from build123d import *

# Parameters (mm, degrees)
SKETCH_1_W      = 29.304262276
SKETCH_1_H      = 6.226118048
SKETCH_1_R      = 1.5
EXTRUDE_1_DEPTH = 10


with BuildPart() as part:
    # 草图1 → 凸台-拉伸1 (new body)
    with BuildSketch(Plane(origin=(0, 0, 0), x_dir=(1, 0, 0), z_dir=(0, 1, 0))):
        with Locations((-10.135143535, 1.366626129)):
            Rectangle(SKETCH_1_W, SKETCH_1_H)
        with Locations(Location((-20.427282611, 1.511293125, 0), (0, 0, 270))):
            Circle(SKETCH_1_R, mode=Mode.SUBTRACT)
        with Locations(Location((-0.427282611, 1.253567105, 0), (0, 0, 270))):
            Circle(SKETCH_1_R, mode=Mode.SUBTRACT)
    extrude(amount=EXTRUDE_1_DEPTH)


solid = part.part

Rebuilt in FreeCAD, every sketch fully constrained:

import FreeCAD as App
import Part
import Sketcher

V = App.Vector
Q = App.Units.Quantity


def add_polygon(sketch, points):
    """Adds a closed chain of lines whose ends are joined by coincident constraints."""
    first, n = sketch.GeometryCount, len(points)
    for a, b in zip(points, points[1:] + points[:1]):
        sketch.addGeometry(Part.LineSegment(App.Vector(*a, 0), App.Vector(*b, 0)), False)
    for i in range(n):
        sketch.addConstraint(Sketcher.Constraint("Coincident", first + i, 2, first + (i + 1) % n, 1))

doc = App.newDocument("Part")
body = doc.addObject("PartDesign::Body", "Body")

sketch1 = doc.addObject("Sketcher::SketchObject", "Sketch")
body.addObject(sketch1)
sketch1.AttachmentSupport = (doc.XZ_Plane, [""])
sketch1.MapMode = "FlatFace"
add_polygon(sketch1, [(-24.787275, -4.479685), (-24.787275, 1.746433), (4.516988, 1.746433), (4.516988, -4.479685)])
sketch1.addGeometry(Part.Circle(V(-0.427283, -1.253567, 0), V(0, 0, 1), 1.5), False)
sketch1.addGeometry(Part.Circle(V(-20.427283, -1.511293, 0), V(0, 0, 1), 1.5), False)
sketch1.addConstraint([
    Sketcher.Constraint("Vertical", 0),
    Sketcher.Constraint("Horizontal", 1),
    Sketcher.Constraint("Vertical", 2),
    Sketcher.Constraint("Horizontal", 3),
    Sketcher.Constraint("Equal", 4, 5),
    Sketcher.Constraint("Diameter", 4, Q("3 mm")),
    Sketcher.Constraint("DistanceX", 5, 3, 4, 3, Q("20 mm")),
    Sketcher.Constraint("DistanceY", 4, 3, 0, 2, Q("3 mm")),
    Sketcher.Constraint("DistanceY", 0, 1, 0, 2, Q("6.226118 mm")),
    Sketcher.Constraint("DistanceX", 1, 1, 1, 2, Q("29.304262 mm")),
    Sketcher.Constraint("DistanceX", 4, 3, 1, 2, Q("4.94427 mm")),
    Sketcher.Constraint("DistanceX", 4, 3, -1, 1, Q("0.427283 mm")),
    Sketcher.Constraint("DistanceY", 4, 3, -1, 1, Q("1.253567 mm")),
    Sketcher.Constraint("DistanceY", 5, 3, -1, 1, Q("1.511293 mm")),
])
pad1 = doc.addObject("PartDesign::Pad", "Pad")
body.addObject(pad1)
pad1.Profile = sketch1
pad1.Length = 10
pad1.Reversed = True

doc.recompute()
